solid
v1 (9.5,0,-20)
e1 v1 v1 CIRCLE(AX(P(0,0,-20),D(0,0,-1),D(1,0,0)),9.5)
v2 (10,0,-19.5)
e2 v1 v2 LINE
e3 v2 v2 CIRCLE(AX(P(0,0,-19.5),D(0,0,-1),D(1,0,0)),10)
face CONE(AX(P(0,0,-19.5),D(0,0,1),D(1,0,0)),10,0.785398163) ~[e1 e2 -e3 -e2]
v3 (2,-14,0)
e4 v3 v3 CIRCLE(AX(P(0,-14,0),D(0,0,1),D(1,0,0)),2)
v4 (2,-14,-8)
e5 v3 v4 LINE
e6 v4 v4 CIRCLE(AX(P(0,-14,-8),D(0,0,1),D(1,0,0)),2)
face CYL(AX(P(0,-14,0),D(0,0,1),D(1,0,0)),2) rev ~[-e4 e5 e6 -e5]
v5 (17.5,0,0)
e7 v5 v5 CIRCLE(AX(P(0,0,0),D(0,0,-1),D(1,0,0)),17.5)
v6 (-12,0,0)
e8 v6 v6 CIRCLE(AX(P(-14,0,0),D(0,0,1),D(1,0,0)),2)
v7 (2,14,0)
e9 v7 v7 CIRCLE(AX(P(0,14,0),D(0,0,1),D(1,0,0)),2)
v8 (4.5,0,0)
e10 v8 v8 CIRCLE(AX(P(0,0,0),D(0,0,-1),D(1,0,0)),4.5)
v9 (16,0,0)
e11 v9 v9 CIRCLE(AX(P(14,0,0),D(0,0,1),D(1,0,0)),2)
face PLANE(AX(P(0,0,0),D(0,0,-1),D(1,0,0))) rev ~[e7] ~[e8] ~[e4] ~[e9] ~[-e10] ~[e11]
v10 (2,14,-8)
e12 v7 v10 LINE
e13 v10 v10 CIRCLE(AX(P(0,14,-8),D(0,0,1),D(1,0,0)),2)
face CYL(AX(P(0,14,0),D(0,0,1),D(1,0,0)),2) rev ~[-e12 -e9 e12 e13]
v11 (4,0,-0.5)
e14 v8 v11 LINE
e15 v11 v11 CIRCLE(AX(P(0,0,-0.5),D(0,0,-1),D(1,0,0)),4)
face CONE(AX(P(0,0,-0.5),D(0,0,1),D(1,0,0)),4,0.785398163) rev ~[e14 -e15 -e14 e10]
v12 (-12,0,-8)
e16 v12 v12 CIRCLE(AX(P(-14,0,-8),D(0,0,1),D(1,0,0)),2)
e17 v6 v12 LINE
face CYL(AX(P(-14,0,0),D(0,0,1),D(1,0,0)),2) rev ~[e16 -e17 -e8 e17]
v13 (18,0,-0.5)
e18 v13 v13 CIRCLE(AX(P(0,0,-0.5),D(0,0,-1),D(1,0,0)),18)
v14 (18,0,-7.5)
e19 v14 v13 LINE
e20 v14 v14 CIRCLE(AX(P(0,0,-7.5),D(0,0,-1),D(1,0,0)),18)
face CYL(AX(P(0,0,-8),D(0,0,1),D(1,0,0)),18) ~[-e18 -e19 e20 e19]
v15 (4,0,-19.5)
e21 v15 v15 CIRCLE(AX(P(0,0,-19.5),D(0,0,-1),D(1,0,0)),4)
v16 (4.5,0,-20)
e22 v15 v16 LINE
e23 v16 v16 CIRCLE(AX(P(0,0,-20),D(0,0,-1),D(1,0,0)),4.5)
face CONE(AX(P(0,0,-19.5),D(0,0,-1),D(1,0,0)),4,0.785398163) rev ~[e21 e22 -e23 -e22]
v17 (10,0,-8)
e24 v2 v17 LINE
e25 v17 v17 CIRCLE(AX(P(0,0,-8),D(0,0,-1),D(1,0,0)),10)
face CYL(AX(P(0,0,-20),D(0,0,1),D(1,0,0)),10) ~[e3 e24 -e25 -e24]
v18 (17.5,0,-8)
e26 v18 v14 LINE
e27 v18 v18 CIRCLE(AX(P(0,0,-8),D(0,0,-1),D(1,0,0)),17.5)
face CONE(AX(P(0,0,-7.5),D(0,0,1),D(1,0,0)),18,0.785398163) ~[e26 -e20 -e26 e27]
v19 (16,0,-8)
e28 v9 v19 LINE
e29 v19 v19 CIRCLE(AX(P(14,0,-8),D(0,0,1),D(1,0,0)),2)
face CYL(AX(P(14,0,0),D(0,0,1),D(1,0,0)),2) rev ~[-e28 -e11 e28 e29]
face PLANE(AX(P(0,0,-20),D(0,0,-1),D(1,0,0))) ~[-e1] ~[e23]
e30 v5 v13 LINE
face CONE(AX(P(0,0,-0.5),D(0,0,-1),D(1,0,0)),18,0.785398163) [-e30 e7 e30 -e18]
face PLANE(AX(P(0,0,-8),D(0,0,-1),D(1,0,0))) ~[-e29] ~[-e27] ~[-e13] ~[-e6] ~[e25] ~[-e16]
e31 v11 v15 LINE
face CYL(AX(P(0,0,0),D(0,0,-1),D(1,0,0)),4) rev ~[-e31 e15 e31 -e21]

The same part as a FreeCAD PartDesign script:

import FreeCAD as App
import Part
import Sketcher
from FreeCAD import Vector


def edges_at(feature, points):
    """Names of the edges that pass closest to the given points."""
    edges = feature.Shape.Edges
    near = lambda p: min(range(len(edges)), key=lambda i: edges[i].distToShape(Part.Vertex(*p))[0])
    return sorted({f"Edge{near(p) + 1}" for p in points})

doc = App.newDocument("Part")
body = doc.addObject("PartDesign::Body", "Body")

sketch1 = body.newObject("Sketcher::SketchObject", "Sketch")
sketch1.AttachmentSupport = (doc.getObject("XZ_Plane"), [""])
sketch1.MapMode = "FlatFace"
sketch1.addGeometry([
    Part.LineSegment(Vector(18, 0, 0), Vector(4, 0, 0)),
    Part.LineSegment(Vector(4, 0, 0), Vector(4, -20, 0)),
    Part.LineSegment(Vector(4, -20, 0), Vector(10, -20, 0)),
    Part.LineSegment(Vector(10, -20, 0), Vector(10, -8, 0)),
    Part.LineSegment(Vector(10, -8, 0), Vector(18, -8, 0)),
    Part.LineSegment(Vector(18, -8, 0), Vector(18, 0, 0)),
], False)
sketch1.addConstraint([
    Sketcher.Constraint("Coincident", 0, 2, 1, 1),
    Sketcher.Constraint("Coincident", 1, 2, 2, 1),
    Sketcher.Constraint("Coincident", 2, 2, 3, 1),
    Sketcher.Constraint("Coincident", 3, 2, 4, 1),
    Sketcher.Constraint("Coincident", 4, 2, 5, 1),
    Sketcher.Constraint("Coincident", 5, 2, 0, 1),
    Sketcher.Constraint("Horizontal", 0),
    Sketcher.Constraint("Vertical", 1),
    Sketcher.Constraint("Horizontal", 2),
    Sketcher.Constraint("Vertical", 3),
    Sketcher.Constraint("Horizontal", 4),
    Sketcher.Constraint("Vertical", 5),
    Sketcher.Constraint("PointOnObject", 0, 2, -1),
    Sketcher.Constraint("Equal", 4, 5),
    Sketcher.Constraint("DistanceX", 0, 2, 0, 1, 14.0),
    Sketcher.Constraint("DistanceX", 2, 1, 2, 2, 6.0),
    Sketcher.Constraint("DistanceY", 1, 2, 1, 1, 20.0),
    Sketcher.Constraint("DistanceX", -1, 1, 0, 2, 4.0),
])
revolution = body.newObject("PartDesign::Revolution", "Revolution")
revolution.Profile = sketch1
revolution.ReferenceAxis = (sketch1, ["V_Axis"])
revolution.Angle = 360
doc.recompute()

chamfer = body.newObject("PartDesign::Chamfer", "Chamfer")
chamfer.Base = (revolution, edges_at(revolution, [
    (-18, 0, 0),
    (-18, 0, -8),
    (-10, 0, -20),
    (-4, 0, 0),
    (-4, 0, -20),
]))
chamfer.Size = 0.5

sketch2 = body.newObject("Sketcher::SketchObject", "Sketch001")
sketch2.AttachmentSupport = (doc.getObject("XY_Plane"), [""])
sketch2.MapMode = "FlatFace"
sketch2.addGeometry([
    Part.Circle(Vector(14, 0, 0), Vector(0, 0, 1), 2),
    Part.Circle(Vector(-14, 0, 0), Vector(0, 0, 1), 2),
    Part.Circle(Vector(0, 14, 0), Vector(0, 0, 1), 2),
    Part.Circle(Vector(0, -14, 0), Vector(0, 0, 1), 2),
], False)
sketch2.addConstraint([
    Sketcher.Constraint("Equal", 0, 1),
    Sketcher.Constraint("Equal", 1, 2),
    Sketcher.Constraint("Equal", 2, 3),
    Sketcher.Constraint("Symmetric", 0, 3, 1, 3, -1, 1),
    Sketcher.Constraint("Symmetric", 2, 3, 3, 3, -1, 1),
    Sketcher.Constraint("PointOnObject", 0, 3, -1),
    Sketcher.Constraint("PointOnObject", 2, 3, -2),
    Sketcher.Constraint("Diameter", 0, 4.0),
    Sketcher.Constraint("DistanceX", -1, 1, 0, 3, 14.0),
    Sketcher.Constraint("DistanceY", -1, 1, 2, 3, 14.0),
])
pocket1 = body.newObject("PartDesign::Pocket", "Pocket")
pocket1.Profile = sketch2
pocket1.Length = 25

doc.recompute()
